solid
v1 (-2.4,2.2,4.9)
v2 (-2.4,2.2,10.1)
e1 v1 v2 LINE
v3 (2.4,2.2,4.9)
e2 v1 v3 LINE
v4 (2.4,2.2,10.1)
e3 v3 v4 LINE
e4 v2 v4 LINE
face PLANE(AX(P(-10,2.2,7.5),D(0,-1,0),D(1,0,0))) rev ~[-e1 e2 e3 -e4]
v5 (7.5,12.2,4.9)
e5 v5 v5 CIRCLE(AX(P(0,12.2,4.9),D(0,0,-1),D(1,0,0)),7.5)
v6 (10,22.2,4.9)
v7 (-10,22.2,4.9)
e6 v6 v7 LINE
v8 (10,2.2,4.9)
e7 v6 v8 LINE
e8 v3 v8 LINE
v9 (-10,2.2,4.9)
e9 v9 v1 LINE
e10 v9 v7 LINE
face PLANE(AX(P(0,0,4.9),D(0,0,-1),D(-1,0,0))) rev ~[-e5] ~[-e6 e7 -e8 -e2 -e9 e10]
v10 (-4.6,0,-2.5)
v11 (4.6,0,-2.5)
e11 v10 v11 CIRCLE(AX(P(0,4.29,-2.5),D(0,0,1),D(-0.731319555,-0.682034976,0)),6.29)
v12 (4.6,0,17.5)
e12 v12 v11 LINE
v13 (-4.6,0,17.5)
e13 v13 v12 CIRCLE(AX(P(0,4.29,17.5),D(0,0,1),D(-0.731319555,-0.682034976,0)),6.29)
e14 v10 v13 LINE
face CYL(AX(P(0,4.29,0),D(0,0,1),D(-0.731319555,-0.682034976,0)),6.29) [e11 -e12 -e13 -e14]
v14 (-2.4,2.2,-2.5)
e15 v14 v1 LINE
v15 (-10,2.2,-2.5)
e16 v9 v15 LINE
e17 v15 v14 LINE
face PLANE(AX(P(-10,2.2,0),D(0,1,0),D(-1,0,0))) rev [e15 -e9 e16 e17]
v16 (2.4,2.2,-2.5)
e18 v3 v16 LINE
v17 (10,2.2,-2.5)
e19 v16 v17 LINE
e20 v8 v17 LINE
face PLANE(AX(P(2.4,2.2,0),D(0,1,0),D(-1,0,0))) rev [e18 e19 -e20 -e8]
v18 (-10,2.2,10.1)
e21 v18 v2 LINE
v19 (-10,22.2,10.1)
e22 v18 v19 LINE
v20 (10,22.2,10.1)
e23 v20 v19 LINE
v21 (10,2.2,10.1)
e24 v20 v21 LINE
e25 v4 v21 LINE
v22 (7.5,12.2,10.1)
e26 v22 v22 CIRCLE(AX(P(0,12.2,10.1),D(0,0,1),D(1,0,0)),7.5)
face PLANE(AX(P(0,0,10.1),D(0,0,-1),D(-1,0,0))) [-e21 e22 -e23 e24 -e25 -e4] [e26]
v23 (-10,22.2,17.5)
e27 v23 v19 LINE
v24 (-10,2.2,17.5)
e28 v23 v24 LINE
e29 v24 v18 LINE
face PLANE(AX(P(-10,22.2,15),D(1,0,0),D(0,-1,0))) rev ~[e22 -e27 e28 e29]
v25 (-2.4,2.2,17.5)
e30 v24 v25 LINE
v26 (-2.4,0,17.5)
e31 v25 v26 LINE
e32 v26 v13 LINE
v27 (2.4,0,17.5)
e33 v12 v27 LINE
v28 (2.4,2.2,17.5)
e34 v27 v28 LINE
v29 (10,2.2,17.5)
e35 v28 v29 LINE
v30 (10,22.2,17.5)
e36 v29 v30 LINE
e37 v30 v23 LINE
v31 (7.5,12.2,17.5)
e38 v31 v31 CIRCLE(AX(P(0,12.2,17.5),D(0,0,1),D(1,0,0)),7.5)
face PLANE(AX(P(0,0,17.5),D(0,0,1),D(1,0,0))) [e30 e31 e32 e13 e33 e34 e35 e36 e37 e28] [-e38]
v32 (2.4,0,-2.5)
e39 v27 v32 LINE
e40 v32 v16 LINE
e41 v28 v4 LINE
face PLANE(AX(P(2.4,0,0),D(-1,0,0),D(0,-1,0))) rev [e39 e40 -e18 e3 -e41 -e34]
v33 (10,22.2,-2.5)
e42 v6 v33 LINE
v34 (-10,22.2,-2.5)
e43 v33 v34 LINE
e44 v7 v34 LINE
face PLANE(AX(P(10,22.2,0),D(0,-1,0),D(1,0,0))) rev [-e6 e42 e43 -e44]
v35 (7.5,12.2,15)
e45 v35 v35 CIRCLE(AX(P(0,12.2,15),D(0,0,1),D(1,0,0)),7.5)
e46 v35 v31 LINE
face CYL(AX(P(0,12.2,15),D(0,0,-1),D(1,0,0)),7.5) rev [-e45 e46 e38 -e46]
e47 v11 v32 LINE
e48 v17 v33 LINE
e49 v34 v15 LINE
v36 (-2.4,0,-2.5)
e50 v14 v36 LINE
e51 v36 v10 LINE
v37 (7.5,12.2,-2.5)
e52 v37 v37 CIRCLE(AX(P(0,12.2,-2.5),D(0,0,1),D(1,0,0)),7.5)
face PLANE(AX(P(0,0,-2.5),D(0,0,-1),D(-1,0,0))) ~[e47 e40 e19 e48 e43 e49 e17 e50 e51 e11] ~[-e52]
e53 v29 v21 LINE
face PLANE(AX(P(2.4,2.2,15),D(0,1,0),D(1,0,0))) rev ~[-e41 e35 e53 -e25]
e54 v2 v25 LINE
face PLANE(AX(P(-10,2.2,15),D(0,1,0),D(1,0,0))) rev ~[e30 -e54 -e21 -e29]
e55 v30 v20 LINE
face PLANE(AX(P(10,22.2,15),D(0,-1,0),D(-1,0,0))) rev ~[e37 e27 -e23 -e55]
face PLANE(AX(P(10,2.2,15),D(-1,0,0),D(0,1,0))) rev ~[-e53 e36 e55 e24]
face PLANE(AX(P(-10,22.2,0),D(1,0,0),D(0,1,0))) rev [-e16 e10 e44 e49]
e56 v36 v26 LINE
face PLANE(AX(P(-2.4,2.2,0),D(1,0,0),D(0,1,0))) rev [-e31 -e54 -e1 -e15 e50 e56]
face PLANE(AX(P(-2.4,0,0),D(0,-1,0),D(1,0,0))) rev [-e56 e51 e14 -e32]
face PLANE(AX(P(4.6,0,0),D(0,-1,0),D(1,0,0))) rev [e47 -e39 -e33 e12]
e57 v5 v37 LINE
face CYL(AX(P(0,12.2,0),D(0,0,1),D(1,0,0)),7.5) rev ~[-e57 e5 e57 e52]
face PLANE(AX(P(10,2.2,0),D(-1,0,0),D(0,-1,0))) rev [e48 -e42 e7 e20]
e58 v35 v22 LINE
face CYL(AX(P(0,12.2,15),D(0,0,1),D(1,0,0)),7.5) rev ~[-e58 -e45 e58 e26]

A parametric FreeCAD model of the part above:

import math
import FreeCAD as App
import Part
import Sketcher

doc = App.newDocument("Part")
body = doc.addObject("PartDesign::Body", "Body")

sketch1 = doc.addObject("Sketcher::SketchObject", "Sketch")
body.addObject(sketch1)
sketch1.AttachmentSupport = (doc.XY_Plane, [""])
sketch1.MapMode = "FlatFace"
sketch1.addGeometry(Part.LineSegment(App.Vector(4.6, 0, 0), App.Vector(2.4, 0, 0)), False)
sketch1.addGeometry(Part.LineSegment(App.Vector(2.4, 0, 0), App.Vector(2.4, 7, 0)), False)
sketch1.addGeometry(Part.LineSegment(App.Vector(2.4, 7, 0), App.Vector(-2.4, 7, 0)), False)
sketch1.addGeometry(Part.LineSegment(App.Vector(-2.4, 7, 0), App.Vector(-2.4, 0, 0)), False)
sketch1.addGeometry(Part.LineSegment(App.Vector(-2.4, 0, 0), App.Vector(-4.6, 0, 0)), False)
sketch1.addGeometry(Part.ArcOfCircle(Part.Circle(App.Vector(0, 4.3, 0), App.Vector(0, 0, 1), 6.3), math.radians(-137), math.radians(-43)), False)
sketch1.addConstraint(Sketcher.Constraint("Coincident", 0, 2, 1, 1))
sketch1.addConstraint(Sketcher.Constraint("Coincident", 1, 2, 2, 1))
sketch1.addConstraint(Sketcher.Constraint("Coincident", 2, 2, 3, 1))
sketch1.addConstraint(Sketcher.Constraint("Coincident", 3, 2, 4, 1))
sketch1.addConstraint(Sketcher.Constraint("Coincident", 4, 2, 5, 1))
sketch1.addConstraint(Sketcher.Constraint("Coincident", 5, 2, 0, 1))
sketch1.addConstraint(Sketcher.Constraint("Horizontal", 0))
sketch1.addConstraint(Sketcher.Constraint("Vertical", 1))
sketch1.addConstraint(Sketcher.Constraint("Horizontal", 2))
sketch1.addConstraint(Sketcher.Constraint("Vertical", 3))
sketch1.addConstraint(Sketcher.Constraint("Horizontal", 4))
sketch1.addConstraint(Sketcher.Constraint("Symmetric", 0, 2, 3, 2, -1, 1))
sketch1.addConstraint(Sketcher.Constraint("Symmetric", 4, 2, 5, 2, -2))
sketch1.addConstraint(Sketcher.Constraint("DistanceY", 1, 1, 1, 2, 7.0))
sketch1.addConstraint(Sketcher.Constraint("DistanceX", 0, 2, 0, 1, 2.2))
sketch1.addConstraint(Sketcher.Constraint("DistanceX", 2, 2, 2, 1, 4.8))
sketch1.addConstraint(Sketcher.Constraint("Radius", 5, 6.29))
pad1 = doc.addObject("PartDesign::Pad", "Pad")
body.addObject(pad1)
pad1.Profile = sketch1
pad1.Length = 15

sketch2 = doc.addObject("Sketcher::SketchObject", "Sketch001")
body.addObject(sketch2)
sketch2.AttachmentSupport = (doc.XY_Plane, [""])
sketch2.MapMode = "FlatFace"
sketch2.AttachmentOffset = App.Placement(App.Vector(0, 0, 15), App.Rotation())
sketch2.addGeometry(Part.LineSegment(App.Vector(-10, 2, 0), App.Vector(10, 2, 0)), False)
sketch2.addGeometry(Part.LineSegment(App.Vector(10, 2, 0), App.Vector(10, 22, 0)), False)
sketch2.addGeometry(Part.LineSegment(App.Vector(10, 22, 0), App.Vector(-10, 22, 0)), False)
sketch2.addGeometry(Part.LineSegment(App.Vector(-10, 22, 0), App.Vector(-10, 2, 0)), False)
sketch2.addConstraint(Sketcher.Constraint("Coincident", 0, 2, 1, 1))
sketch2.addConstraint(Sketcher.Constraint("Coincident", 1, 2, 2, 1))
sketch2.addConstraint(Sketcher.Constraint("Coincident", 2, 2, 3, 1))
sketch2.addConstraint(Sketcher.Constraint("Coincident", 3, 2, 0, 1))
sketch2.addConstraint(Sketcher.Constraint("Horizontal", 0))
sketch2.addConstraint(Sketcher.Constraint("Vertical", 1))
sketch2.addConstraint(Sketcher.Constraint("Horizontal", 2))
sketch2.addConstraint(Sketcher.Constraint("Vertical", 3))
sketch2.addConstraint(Sketcher.Constraint("Equal", 2, 1))
sketch2.addConstraint(Sketcher.Constraint("DistanceX", 0, 1, 0, 2, 20.0))
sketch2.addConstraint(Sketcher.Constraint("DistanceX", -1, 1, 0, 2, 10.0))
sketch2.addConstraint(Sketcher.Constraint("DistanceY", -1, 1, 0, 2, 2.2))
pad2 = doc.addObject("PartDesign::Pad", "Pad001")
body.addObject(pad2)
pad2.Profile = sketch2
pad2.Length = 5
pad2.Reversed = True

sketch3 = doc.addObject("Sketcher::SketchObject", "Sketch002")
body.addObject(sketch3)
sketch3.AttachmentSupport = (doc.XY_Plane, [""])
sketch3.MapMode = "FlatFace"
sketch3.AttachmentOffset = App.Placement(App.Vector(0, 0, 15), App.Rotation())
sketch3.addGeometry(Part.Circle(App.Vector(0, 12, 0), App.Vector(0, 0, 1), 8), False)
sketch3.addConstraint(Sketcher.Constraint("PointOnObject", 0, 3, -2))
sketch3.addConstraint(Sketcher.Constraint("Diameter", 0, 15.0))
sketch3.addConstraint(Sketcher.Constraint("DistanceY", -1, 1, 0, 3, 12.2))
pocket1 = doc.addObject("PartDesign::Pocket", "Pocket")
body.addObject(pocket1)
pocket1.Profile = sketch3
pocket1.Length = 5

sketch4 = doc.addObject("Sketcher::SketchObject", "Sketch003")
body.addObject(sketch4)
sketch4.AttachmentSupport = (doc.XY_Plane, [""])
sketch4.MapMode = "FlatFace"
sketch4.addGeometry(Part.LineSegment(App.Vector(10, 22, 0), App.Vector(10, 2, 0)), False)
sketch4.addGeometry(Part.LineSegment(App.Vector(10, 2, 0), App.Vector(-10, 2, 0)), False)
sketch4.addGeometry(Part.LineSegment(App.Vector(-10, 2, 0), App.Vector(-10, 22, 0)), False)
sketch4.addGeometry(Part.LineSegment(App.Vector(-10, 22, 0), App.Vector(10, 22, 0)), False)
sketch4.addConstraint(Sketcher.Constraint("Coincident", 0, 2, 1, 1))
sketch4.addConstraint(Sketcher.Constraint("Coincident", 1, 2, 2, 1))
sketch4.addConstraint(Sketcher.Constraint("Coincident", 2, 2, 3, 1))
sketch4.addConstraint(Sketcher.Constraint("Coincident", 3, 2, 0, 1))
sketch4.addConstraint(Sketcher.Constraint("Vertical", 0))
sketch4.addConstraint(Sketcher.Constraint("Horizontal", 1))
sketch4.addConstraint(Sketcher.Constraint("Vertical", 2))
sketch4.addConstraint(Sketcher.Constraint("Horizontal", 3))
sketch4.addConstraint(Sketcher.Constraint("Equal", 3, 0))
sketch4.addConstraint(Sketcher.Constraint("DistanceX", 1, 2, 1, 1, 20.0))
sketch4.addConstraint(Sketcher.Constraint("DistanceX", -1, 1, 0, 2, 10.0))
sketch4.addConstraint(Sketcher.Constraint("DistanceY", -1, 1, 0, 2, 2.2))
pocket2 = doc.addObject("PartDesign::Pocket", "Pocket001")
body.addObject(pocket2)
pocket2.Profile = sketch4
pocket2.Length = 10
pocket2.Reversed = True
doc.recompute()

datumplane = doc.addObject("PartDesign::Plane", "DatumPlane")
body.addObject(datumplane)
datumplane.AttachmentSupport = (doc.XY_Plane, [""])
datumplane.MapMode = "FlatFace"
datumplane.AttachmentOffset = App.Placement(App.Vector(0, 0, 7.5), App.Rotation())
mirrored = doc.addObject("PartDesign::Mirrored", "Mirrored")
body.addObject(mirrored)
mirrored.Originals = [pad2, pocket1]
mirrored.MirrorPlane = (datumplane, [""])
body.Tip = mirrored

sketch5 = doc.addObject("Sketcher::SketchObject", "Sketch004")
body.addObject(sketch5)
sketch5.AttachmentSupport = (doc.XY_Plane, [""])
sketch5.MapMode = "FlatFace"
sketch5.AttachmentOffset = App.Placement(App.Vector(0, 0, 7.5), App.Rotation())
sketch5.addGeometry(Part.LineSegment(App.Vector(10, 2, 0), App.Vector(-10, 2, 0)), False)
sketch5.addGeometry(Part.LineSegment(App.Vector(-10, 2, 0), App.Vector(-10, 22, 0)), False)
sketch5.addGeometry(Part.LineSegment(App.Vector(-10, 22, 0), App.Vector(10, 22, 0)), False)
sketch5.addGeometry(Part.LineSegment(App.Vector(10, 22, 0), App.Vector(10, 2, 0)), False)
sketch5.addConstraint(Sketcher.Constraint("Coincident", 0, 2, 1, 1))
sketch5.addConstraint(Sketcher.Constraint("Coincident", 1, 2, 2, 1))
sketch5.addConstraint(Sketcher.Constraint("Coincident", 2, 2, 3, 1))
sketch5.addConstraint(Sketcher.Constraint("Coincident", 3, 2, 0, 1))
sketch5.addConstraint(Sketcher.Constraint("Horizontal", 0))
sketch5.addConstraint(Sketcher.Constraint("Vertical", 1))
sketch5.addConstraint(Sketcher.Constraint("Horizontal", 2))
sketch5.addConstraint(Sketcher.Constraint("Vertical", 3))
sketch5.addConstraint(Sketcher.Constraint("Equal", 2, 1))
sketch5.addConstraint(Sketcher.Constraint("DistanceX", 0, 2, 0, 1, 20.0))
sketch5.addConstraint(Sketcher.Constraint("DistanceX", 0, 2, -1, 1, 10.0))
sketch5.addConstraint(Sketcher.Constraint("DistanceY", -1, 1, 0, 2, 2.2))
pocket3 = doc.addObject("PartDesign::Pocket", "Pocket002")
body.addObject(pocket3)
pocket3.Profile = sketch5
pocket3.Length = 5.2
pocket3.Midplane = True

sketch6 = doc.addObject("Sketcher::SketchObject", "Sketch005")
body.addObject(sketch6)
sketch6.AttachmentSupport = (doc.XY_Plane, [""])
sketch6.MapMode = "FlatFace"
sketch6.AttachmentOffset = App.Placement(App.Vector(0, 0, 15), App.Rotation())
sketch6.addGeometry(Part.LineSegment(App.Vector(-10, 2.2, 0), App.Vector(-2.4, 2.2, 0)), False)
sketch6.addGeometry(Part.LineSegment(App.Vector(-2.4, 2.2, 0), App.Vector(-2.4, 0, 0)), False)
sketch6.addGeometry(Part.LineSegment(App.Vector(-2.4, 0, 0), App.Vector(-4.6, 0, 0)), False)
sketch6.addGeometry(Part.ArcOfCircle(Part.Circle(App.Vector(0, 4.3, 0), App.Vector(0, 0, 1), 6.3), math.radians(-137), math.radians(-43)), False)
sketch6.addGeometry(Part.LineSegment(App.Vector(4.6, 0, 0), App.Vector(2.4, 0, 0)), False)
sketch6.addGeometry(Part.LineSegment(App.Vector(2.4, 0, 0), App.Vector(2.4, 2.2, 0)), False)
sketch6.addGeometry(Part.LineSegment(App.Vector(2.4, 2.2, 0), App.Vector(10, 2.2, 0)), False)
sketch6.addGeometry(Part.LineSegment(App.Vector(10, 2.2, 0), App.Vector(10, 22.2, 0)), False)
sketch6.addGeometry(Part.LineSegment(App.Vector(10, 22.2, 0), App.Vector(-10, 22.2, 0)), False)
sketch6.addGeometry(Part.LineSegment(App.Vector(-10, 22.2, 0), App.Vector(-10, 2.2, 0)), False)
sketch6.addGeometry(Part.Circle(App.Vector(0, 12.2, 0), App.Vector(0, 0, 1), 7.5), False)
sketch6.addConstraint(Sketcher.Constraint("Coincident", 0, 2, 1, 1))
sketch6.addConstraint(Sketcher.Constraint("Coincident", 1, 2, 2, 1))
sketch6.addConstraint(Sketcher.Constraint("Coincident", 2, 2, 3, 1))
sketch6.addConstraint(Sketcher.Constraint("Coincident", 3, 2, 4, 1))
sketch6.addConstraint(Sketcher.Constraint("Coincident", 4, 2, 5, 1))
sketch6.addConstraint(Sketcher.Constraint("Coincident", 5, 2, 6, 1))
sketch6.addConstraint(Sketcher.Constraint("Coincident", 6, 2, 7, 1))
sketch6.addConstraint(Sketcher.Constraint("Coincident", 7, 2, 8, 1))
sketch6.addConstraint(Sketcher.Constraint("Coincident", 8, 2, 9, 1))
sketch6.addConstraint(Sketcher.Constraint("Coincident", 9, 2, 0, 1))
sketch6.addConstraint(Sketcher.Constraint("Horizontal", 0))
sketch6.addConstraint(Sketcher.Constraint("Vertical", 1))
sketch6.addConstraint(Sketcher.Constraint("Horizontal", 2))
sketch6.addConstraint(Sketcher.Constraint("Horizontal", 4))
sketch6.addConstraint(Sketcher.Constraint("Vertical", 5))
sketch6.addConstraint(Sketcher.Constraint("Horizontal", 6))
sketch6.addConstraint(Sketcher.Constraint("Vertical", 7))
sketch6.addConstraint(Sketcher.Constraint("Horizontal", 8))
sketch6.addConstraint(Sketcher.Constraint("Vertical", 9))
sketch6.addConstraint(Sketcher.Constraint("Symmetric", 2, 2, 3, 2, -1, 1))
sketch6.addConstraint(Sketcher.Constraint("Symmetric", 1, 2, 4, 2, -2))
sketch6.addConstraint(Sketcher.Constraint("Symmetric", 6, 2, 9, 2, -2))
sketch6.addConstraint(Sketcher.Constraint("PointOnObject", 10, 3, -2))
sketch6.addConstraint(Sketcher.Constraint("Equal", 4, 1))
sketch6.addConstraint(Sketcher.Constraint("Equal", 8, 7))
sketch6.addConstraint(Sketcher.Constraint("Diameter", 10, 15.0))
sketch6.addConstraint(Sketcher.Constraint("DistanceX", 8, 2, 8, 1, 20.0))
sketch6.addConstraint(Sketcher.Constraint("Radius", 3, 6.29))
sketch6.addConstraint(Sketcher.Constraint("DistanceX", 0, 1, 0, 2, 7.6))
sketch6.addConstraint(Sketcher.Constraint("DistanceX", 2, 2, 2, 1, 2.2))
sketch6.addConstraint(Sketcher.Constraint("DistanceY", 0, 2, 10, 3, 10.0))
pad3 = doc.addObject("PartDesign::Pad", "Pad002")
body.addObject(pad3)
pad3.Profile = sketch6
pad3.Length = 2.5
doc.recompute()

datumplane2 = doc.addObject("PartDesign::Plane", "DatumPlane001")
body.addObject(datumplane2)
datumplane2.AttachmentSupport = (doc.XY_Plane, [""])
datumplane2.MapMode = "FlatFace"
datumplane2.AttachmentOffset = App.Placement(App.Vector(0, 0, 7.5), App.Rotation())
mirrored2 = doc.addObject("PartDesign::Mirrored", "Mirrored001")
body.addObject(mirrored2)
mirrored2.Originals = [pad3]
mirrored2.MirrorPlane = (datumplane2, [""])
body.Tip = mirrored2

doc.recompute()
